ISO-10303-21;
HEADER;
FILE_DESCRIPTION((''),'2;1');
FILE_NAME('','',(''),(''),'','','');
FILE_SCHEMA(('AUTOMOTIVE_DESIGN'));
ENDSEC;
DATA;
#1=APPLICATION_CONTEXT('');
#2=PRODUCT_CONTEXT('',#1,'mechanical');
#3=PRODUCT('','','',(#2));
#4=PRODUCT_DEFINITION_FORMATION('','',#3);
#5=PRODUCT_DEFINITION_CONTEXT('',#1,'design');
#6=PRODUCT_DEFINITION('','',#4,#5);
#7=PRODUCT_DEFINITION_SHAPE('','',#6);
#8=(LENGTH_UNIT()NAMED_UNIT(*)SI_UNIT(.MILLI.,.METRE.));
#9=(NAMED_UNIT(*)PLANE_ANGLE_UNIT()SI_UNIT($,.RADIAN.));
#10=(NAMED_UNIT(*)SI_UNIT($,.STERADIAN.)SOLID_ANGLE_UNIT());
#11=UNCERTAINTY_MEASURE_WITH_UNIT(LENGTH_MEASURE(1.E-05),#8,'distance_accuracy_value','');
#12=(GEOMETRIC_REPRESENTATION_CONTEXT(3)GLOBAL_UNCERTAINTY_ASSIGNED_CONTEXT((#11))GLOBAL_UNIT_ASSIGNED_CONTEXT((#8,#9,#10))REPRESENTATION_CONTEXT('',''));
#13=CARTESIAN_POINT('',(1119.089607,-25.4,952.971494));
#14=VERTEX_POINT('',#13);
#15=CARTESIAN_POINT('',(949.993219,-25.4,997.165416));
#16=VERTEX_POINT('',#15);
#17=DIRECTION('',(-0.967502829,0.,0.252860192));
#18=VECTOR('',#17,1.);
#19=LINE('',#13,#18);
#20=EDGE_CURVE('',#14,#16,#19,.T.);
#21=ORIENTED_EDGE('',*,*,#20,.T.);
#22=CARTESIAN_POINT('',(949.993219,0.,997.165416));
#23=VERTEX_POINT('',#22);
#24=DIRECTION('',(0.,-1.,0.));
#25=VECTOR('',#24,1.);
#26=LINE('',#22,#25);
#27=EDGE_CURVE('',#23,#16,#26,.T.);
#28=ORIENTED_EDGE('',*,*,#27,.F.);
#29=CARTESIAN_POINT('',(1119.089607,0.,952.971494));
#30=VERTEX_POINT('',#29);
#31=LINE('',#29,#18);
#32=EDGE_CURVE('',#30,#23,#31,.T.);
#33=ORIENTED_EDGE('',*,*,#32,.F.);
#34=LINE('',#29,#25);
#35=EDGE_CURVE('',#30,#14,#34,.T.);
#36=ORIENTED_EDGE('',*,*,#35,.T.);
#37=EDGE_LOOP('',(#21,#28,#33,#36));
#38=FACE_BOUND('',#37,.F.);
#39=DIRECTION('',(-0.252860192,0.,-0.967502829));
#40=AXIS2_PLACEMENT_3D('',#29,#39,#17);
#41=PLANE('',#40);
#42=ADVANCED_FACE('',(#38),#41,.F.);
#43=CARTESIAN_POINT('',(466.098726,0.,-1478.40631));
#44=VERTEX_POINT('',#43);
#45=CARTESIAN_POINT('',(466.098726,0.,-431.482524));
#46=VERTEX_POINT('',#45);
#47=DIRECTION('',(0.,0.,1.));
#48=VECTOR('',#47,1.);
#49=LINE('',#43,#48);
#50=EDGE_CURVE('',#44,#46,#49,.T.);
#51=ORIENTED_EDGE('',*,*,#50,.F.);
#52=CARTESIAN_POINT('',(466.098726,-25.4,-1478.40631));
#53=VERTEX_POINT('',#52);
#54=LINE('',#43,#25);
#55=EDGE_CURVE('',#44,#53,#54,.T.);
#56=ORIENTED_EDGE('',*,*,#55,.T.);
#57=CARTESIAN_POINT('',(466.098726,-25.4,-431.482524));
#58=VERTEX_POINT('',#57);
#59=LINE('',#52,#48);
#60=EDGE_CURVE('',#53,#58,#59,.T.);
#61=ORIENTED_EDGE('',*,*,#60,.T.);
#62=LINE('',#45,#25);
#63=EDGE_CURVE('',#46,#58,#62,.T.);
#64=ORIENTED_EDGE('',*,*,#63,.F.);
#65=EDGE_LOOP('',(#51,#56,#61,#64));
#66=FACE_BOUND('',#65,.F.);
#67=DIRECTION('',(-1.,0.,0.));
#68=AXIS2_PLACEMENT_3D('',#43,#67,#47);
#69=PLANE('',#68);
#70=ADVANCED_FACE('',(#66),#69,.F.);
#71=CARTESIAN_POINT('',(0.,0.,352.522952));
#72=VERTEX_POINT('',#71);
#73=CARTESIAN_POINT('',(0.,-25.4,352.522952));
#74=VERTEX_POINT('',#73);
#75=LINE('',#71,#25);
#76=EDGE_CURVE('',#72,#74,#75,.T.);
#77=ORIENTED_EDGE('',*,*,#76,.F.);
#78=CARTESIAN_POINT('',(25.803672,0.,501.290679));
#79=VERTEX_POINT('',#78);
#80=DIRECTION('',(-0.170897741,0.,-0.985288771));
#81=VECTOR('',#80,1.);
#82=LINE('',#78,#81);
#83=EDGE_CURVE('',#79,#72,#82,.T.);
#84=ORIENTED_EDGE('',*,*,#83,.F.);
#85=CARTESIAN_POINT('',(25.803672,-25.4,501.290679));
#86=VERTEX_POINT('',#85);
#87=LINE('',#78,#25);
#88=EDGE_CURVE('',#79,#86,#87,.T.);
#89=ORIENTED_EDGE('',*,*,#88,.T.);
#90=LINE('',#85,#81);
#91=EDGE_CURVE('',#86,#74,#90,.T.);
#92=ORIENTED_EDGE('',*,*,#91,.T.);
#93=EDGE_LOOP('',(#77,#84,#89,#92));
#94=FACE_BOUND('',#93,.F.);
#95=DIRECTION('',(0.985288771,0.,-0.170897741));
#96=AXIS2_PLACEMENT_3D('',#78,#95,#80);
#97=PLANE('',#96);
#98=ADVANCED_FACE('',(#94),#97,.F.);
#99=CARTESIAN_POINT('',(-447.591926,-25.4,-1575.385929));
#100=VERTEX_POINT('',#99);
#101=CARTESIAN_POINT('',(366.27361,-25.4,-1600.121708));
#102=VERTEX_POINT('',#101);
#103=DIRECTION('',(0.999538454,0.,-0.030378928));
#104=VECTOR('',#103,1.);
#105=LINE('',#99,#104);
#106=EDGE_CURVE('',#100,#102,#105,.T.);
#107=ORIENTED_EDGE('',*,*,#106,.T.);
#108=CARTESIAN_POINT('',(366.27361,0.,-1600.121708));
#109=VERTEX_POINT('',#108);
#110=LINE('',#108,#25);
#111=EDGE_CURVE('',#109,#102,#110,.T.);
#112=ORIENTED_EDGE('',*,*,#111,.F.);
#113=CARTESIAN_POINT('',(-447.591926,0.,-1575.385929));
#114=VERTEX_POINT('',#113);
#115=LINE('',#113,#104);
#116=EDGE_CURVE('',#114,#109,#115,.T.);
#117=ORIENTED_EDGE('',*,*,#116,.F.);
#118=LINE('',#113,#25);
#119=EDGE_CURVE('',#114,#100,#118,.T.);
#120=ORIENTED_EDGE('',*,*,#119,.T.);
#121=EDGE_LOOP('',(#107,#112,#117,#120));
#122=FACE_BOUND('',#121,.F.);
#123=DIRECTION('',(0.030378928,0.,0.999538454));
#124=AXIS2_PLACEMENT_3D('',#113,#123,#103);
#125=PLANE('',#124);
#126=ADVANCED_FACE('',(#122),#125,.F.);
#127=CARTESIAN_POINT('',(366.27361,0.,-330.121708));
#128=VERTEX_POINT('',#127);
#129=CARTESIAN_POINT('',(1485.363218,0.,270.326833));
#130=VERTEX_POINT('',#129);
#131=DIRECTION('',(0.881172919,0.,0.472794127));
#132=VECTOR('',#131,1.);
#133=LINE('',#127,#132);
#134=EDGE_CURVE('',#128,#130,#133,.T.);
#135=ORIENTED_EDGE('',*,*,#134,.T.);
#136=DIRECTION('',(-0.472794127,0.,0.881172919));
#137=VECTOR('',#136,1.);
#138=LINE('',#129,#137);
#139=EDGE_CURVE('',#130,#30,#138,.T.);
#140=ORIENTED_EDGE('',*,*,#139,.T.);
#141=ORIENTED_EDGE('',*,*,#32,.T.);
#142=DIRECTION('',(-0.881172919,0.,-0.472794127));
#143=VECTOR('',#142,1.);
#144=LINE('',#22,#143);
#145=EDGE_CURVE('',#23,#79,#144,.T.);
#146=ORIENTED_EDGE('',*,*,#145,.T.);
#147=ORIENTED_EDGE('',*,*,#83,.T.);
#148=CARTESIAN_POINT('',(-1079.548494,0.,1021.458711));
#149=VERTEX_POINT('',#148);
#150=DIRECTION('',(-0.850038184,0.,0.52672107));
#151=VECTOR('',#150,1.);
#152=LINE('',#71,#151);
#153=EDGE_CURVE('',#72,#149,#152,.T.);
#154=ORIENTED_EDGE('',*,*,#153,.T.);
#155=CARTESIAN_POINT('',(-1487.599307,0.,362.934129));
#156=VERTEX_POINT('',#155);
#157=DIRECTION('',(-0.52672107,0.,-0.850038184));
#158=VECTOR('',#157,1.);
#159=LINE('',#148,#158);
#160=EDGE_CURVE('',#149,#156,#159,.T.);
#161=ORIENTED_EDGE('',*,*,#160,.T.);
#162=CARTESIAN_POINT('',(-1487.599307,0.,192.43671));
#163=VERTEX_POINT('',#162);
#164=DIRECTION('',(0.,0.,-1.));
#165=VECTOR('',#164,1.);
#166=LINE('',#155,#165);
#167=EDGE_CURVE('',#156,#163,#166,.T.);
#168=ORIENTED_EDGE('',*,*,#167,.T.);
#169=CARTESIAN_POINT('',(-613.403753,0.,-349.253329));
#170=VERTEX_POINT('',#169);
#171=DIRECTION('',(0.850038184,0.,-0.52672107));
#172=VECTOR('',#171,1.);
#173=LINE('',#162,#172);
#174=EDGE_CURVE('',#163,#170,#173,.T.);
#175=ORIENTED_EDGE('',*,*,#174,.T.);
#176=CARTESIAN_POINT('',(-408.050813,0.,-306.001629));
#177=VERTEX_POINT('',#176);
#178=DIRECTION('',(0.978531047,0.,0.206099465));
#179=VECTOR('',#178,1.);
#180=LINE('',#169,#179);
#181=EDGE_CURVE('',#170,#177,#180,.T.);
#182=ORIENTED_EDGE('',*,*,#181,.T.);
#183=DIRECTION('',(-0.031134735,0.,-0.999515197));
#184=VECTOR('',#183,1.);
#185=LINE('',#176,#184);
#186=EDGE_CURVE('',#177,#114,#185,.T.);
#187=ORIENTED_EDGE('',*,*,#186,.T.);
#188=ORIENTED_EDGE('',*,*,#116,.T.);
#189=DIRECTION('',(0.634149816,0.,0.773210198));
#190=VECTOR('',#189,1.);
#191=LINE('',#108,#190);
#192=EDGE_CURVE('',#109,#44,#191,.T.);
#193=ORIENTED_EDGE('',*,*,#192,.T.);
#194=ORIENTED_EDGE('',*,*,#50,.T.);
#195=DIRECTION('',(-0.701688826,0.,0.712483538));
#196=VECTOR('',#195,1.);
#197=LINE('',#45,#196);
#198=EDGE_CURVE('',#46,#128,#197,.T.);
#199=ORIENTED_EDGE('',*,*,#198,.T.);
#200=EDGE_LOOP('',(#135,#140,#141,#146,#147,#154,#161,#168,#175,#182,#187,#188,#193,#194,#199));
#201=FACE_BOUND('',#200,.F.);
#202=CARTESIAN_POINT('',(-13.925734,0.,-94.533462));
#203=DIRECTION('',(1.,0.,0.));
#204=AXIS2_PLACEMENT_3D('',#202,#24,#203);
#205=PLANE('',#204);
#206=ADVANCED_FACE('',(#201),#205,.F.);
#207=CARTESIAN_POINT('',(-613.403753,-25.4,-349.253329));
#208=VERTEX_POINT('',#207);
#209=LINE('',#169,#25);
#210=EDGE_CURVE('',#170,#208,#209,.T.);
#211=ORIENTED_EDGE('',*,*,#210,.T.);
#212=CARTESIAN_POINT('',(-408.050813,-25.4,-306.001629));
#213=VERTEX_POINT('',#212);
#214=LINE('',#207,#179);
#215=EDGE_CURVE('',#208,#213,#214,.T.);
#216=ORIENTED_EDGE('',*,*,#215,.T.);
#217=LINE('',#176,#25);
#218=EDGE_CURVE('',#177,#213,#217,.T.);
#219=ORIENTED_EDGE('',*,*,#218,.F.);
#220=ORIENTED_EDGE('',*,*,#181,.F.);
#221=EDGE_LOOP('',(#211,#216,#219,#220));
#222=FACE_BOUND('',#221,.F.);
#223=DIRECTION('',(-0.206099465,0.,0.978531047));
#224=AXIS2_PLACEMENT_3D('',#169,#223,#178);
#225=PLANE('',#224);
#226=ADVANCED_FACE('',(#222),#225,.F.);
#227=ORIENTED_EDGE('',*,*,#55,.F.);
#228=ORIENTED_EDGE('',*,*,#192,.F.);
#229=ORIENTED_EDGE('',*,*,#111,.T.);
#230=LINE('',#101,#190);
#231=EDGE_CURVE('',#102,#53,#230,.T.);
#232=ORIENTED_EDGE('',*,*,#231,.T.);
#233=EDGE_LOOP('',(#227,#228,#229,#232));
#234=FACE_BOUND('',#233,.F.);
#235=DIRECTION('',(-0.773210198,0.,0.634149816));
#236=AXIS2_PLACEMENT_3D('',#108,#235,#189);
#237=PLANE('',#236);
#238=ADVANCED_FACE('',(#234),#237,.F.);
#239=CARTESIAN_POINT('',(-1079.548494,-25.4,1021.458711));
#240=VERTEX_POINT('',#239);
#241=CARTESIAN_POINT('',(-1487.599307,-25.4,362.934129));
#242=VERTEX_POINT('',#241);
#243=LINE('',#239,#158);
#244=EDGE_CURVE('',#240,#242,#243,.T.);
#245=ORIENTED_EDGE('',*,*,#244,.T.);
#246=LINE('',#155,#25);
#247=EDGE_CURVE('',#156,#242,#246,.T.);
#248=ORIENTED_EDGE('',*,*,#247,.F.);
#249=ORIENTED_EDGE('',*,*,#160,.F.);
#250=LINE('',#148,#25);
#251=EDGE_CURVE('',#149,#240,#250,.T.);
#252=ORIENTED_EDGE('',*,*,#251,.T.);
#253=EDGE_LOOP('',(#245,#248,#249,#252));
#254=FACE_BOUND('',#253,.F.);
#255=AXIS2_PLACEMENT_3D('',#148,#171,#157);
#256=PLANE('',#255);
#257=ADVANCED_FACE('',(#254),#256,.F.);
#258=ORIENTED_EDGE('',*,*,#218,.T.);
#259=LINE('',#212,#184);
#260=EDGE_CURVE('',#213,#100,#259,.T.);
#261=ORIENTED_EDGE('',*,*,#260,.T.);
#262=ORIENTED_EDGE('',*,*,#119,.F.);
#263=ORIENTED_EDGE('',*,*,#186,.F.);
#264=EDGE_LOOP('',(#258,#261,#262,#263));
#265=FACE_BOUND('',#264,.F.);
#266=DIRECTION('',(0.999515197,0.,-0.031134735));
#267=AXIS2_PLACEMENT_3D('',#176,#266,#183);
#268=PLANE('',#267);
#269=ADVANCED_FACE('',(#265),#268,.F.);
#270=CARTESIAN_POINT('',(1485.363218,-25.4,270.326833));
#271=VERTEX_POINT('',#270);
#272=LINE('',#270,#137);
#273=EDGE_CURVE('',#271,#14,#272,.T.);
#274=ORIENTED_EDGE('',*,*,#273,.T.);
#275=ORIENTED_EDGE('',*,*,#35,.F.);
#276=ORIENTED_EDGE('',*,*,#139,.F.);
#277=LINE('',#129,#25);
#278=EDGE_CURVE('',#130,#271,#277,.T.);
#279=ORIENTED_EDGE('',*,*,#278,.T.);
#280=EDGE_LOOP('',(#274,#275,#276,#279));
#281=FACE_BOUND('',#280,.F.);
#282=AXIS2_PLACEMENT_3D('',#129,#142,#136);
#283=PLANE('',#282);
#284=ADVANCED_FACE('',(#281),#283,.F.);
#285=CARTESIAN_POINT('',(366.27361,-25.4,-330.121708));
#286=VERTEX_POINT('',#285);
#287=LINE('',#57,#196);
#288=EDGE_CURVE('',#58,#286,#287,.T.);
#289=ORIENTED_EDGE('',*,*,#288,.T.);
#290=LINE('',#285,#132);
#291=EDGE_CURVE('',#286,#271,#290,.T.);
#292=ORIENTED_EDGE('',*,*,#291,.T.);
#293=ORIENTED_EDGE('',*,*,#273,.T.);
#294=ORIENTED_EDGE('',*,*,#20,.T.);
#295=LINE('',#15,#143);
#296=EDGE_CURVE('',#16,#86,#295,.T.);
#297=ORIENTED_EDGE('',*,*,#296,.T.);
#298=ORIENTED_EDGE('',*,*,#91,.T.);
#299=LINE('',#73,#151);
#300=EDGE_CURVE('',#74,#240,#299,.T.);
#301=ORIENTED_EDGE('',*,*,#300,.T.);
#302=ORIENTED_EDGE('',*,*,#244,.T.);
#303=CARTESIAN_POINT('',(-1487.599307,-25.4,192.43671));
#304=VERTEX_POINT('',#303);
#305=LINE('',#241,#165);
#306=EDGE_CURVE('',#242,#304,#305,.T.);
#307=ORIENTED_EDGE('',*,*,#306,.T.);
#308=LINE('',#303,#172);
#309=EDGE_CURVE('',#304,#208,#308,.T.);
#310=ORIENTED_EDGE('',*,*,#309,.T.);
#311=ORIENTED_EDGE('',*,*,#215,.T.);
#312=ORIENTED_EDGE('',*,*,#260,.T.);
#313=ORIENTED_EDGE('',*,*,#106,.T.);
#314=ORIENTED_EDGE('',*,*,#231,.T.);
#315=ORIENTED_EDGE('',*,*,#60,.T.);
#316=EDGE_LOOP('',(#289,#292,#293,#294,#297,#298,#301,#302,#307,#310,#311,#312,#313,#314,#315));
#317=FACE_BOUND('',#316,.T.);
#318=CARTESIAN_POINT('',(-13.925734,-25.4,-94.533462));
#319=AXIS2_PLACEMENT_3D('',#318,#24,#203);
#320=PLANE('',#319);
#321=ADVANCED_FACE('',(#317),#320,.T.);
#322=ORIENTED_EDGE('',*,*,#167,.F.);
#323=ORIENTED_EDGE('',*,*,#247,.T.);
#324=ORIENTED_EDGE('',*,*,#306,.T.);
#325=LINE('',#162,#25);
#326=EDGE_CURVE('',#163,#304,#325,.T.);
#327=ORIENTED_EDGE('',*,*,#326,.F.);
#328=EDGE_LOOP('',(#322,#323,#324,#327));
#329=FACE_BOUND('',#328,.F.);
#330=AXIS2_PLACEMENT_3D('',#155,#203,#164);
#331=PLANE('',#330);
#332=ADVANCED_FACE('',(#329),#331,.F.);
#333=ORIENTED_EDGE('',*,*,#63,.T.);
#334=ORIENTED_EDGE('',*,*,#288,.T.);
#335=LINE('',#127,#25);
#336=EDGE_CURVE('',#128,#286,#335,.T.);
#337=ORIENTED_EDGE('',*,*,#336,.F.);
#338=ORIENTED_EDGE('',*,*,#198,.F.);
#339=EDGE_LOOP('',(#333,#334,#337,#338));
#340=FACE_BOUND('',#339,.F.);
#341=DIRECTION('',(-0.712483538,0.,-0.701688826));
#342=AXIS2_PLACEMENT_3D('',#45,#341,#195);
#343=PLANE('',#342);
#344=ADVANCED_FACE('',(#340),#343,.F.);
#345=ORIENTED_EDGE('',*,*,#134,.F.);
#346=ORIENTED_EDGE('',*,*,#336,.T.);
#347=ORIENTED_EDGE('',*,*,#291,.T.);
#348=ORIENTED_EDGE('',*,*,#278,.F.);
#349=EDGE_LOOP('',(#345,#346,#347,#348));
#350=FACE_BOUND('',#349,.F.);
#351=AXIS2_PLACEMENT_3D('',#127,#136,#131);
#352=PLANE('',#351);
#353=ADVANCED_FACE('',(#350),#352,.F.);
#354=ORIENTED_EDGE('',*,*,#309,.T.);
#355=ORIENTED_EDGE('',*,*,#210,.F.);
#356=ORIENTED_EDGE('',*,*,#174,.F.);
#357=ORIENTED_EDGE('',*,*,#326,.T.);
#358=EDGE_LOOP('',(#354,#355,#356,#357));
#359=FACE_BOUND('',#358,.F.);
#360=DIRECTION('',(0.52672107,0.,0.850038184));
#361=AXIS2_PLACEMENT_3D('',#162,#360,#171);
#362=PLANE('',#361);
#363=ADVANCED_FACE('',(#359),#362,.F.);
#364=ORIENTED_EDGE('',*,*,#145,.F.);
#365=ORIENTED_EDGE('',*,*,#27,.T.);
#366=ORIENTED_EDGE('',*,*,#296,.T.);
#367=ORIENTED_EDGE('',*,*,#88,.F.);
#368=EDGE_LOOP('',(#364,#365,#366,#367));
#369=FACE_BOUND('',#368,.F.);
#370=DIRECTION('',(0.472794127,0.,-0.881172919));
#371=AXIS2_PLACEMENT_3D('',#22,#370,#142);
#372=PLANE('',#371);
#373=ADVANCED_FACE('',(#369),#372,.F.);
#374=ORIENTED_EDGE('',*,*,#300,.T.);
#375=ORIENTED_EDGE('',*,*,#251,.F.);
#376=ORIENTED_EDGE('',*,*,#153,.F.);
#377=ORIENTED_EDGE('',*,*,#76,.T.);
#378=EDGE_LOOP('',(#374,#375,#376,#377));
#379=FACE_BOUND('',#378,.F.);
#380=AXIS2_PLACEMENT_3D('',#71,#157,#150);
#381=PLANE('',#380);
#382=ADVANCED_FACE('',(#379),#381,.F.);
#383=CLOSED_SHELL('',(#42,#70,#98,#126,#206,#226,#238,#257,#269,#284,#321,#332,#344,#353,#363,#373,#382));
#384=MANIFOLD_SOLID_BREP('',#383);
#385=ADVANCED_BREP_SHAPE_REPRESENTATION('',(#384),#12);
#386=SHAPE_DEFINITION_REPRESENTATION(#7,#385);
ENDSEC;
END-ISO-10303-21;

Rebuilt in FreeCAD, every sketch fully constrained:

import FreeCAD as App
import Part
import Sketcher

V = App.Vector
Q = App.Units.Quantity

doc = App.newDocument("Part")
body = doc.addObject("PartDesign::Body", "Body")

sketch1 = body.newObject("Sketcher::SketchObject", "Sketch")
sketch1.AttachmentSupport = (doc.getObject("XZ_Plane"), [""])
sketch1.MapMode = "FlatFace"
sketch1.addGeometry([
    Part.LineSegment(V(366, -330, 0), V(1485, 270, 0)),
    Part.LineSegment(V(1485, 270, 0), V(1119, 953, 0)),
    Part.LineSegment(V(1119, 953, 0), V(950, 997, 0)),
    Part.LineSegment(V(950, 997, 0), V(26, 501, 0)),
    Part.LineSegment(V(26, 501, 0), V(0, 353, 0)),
    Part.LineSegment(V(0, 353, 0), V(-1080, 1021, 0)),
    Part.LineSegment(V(-1080, 1021, 0), V(-1488, 363, 0)),
    Part.LineSegment(V(-1488, 363, 0), V(-1488, 192, 0)),
    Part.LineSegment(V(-1488, 192, 0), V(-613, -349, 0)),
    Part.LineSegment(V(-613, -349, 0), V(-408, -306, 0)),
    Part.LineSegment(V(-408, -306, 0), V(-448, -1575, 0)),
    Part.LineSegment(V(-448, -1575, 0), V(366, -1600, 0)),
    Part.LineSegment(V(366, -1600, 0), V(466, -1478, 0)),
    Part.LineSegment(V(466, -1478, 0), V(466, -431, 0)),
    Part.LineSegment(V(466, -431, 0), V(366, -330, 0)),
], False)
sketch1.addConstraint([
    Sketcher.Constraint("Coincident", 0, 2, 1, 1),
    Sketcher.Constraint("Coincident", 1, 2, 2, 1),
    Sketcher.Constraint("Coincident", 2, 2, 3, 1),
    Sketcher.Constraint("Coincident", 3, 2, 4, 1),
    Sketcher.Constraint("Coincident", 4, 2, 5, 1),
    Sketcher.Constraint("Coincident", 5, 2, 6, 1),
    Sketcher.Constraint("Coincident", 6, 2, 7, 1),
    Sketcher.Constraint("Coincident", 7, 2, 8, 1),
    Sketcher.Constraint("Coincident", 8, 2, 9, 1),
    Sketcher.Constraint("Coincident", 9, 2, 10, 1),
    Sketcher.Constraint("Coincident", 10, 2, 11, 1),
    Sketcher.Constraint("Coincident", 11, 2, 12, 1),
    Sketcher.Constraint("Coincident", 12, 2, 13, 1),
    Sketcher.Constraint("Coincident", 13, 2, 14, 1),
    Sketcher.Constraint("Coincident", 14, 2, 0, 1),
    Sketcher.Constraint("Vertical", 7),
    Sketcher.Constraint("Vertical", 13),
    Sketcher.Constraint("PointOnObject", 4, 2, -2),
    Sketcher.Constraint("Perpendicular", 0, 1),
    Sketcher.Constraint("Perpendicular", 1, 3),
    Sketcher.Constraint("Perpendicular", 5, 6),
    Sketcher.Constraint("Perpendicular", 6, 8),
    Sketcher.Constraint("Vertical", 11, 2, 14, 2),
    Sketcher.Constraint("Equal", 0, 5),
    Sketcher.Constraint("Equal", 1, 6),
    Sketcher.Constraint("Equal", 5, 10),
    Sketcher.Constraint("Distance", 0, Q("50 in")),
    Sketcher.Constraint("Distance", 1, Q("30.5 in")),
    Sketcher.Constraint("Angle", 4, Q("-99.84002 deg")),
    Sketcher.Constraint("DistanceY", 7, 2, 7, 1, Q("170.497419 mm")),
    Sketcher.Constraint("DistanceX", 2, 2, 0, 2, Q("535.369999 mm")),
    Sketcher.Constraint("DistanceX", 5, 2, 1, 2, Q("2198.638101 mm")),
    Sketcher.Constraint("DistanceY", 7, 2, 5, 2, Q("829.022001 mm")),
    Sketcher.Constraint("DistanceY", 8, 2, 9, 2, Q("43.2517 mm")),
    Sketcher.Constraint("DistanceY", 10, 2, 8, 2, Q("1226.1326 mm")),
    Sketcher.Constraint("DistanceY", 11, 2, 12, 2, Q("121.715398 mm")),
    Sketcher.Constraint("Distance", 2, Q("174.776118 mm")),
    Sketcher.Constraint("Distance", 4, Q("150.98896 mm")),
    Sketcher.Constraint("Distance", 8, Q("1028.419158 mm")),
    Sketcher.Constraint("Distance", 9, Q("209.85838 mm")),
    Sketcher.Constraint("Distance", 14, Q("142.264081 mm")),
    Sketcher.Constraint("DistanceY", 13, 1, 13, 2, Q("1046.923786 mm")),
    Sketcher.Constraint("DistanceX", -1, 1, 2, 2, Q("949.993219 mm")),
    Sketcher.Constraint("DistanceY", -1, 1, 3, 2, Q("501.290679 mm")),
    Sketcher.Constraint("DistanceY", 11, 2, -1, 1, Q("1600.121708 mm")),
])
pad1 = body.newObject("PartDesign::Pad", "Pad")
pad1.Profile = sketch1
pad1.Length = Q("1 in")

doc.recompute()
